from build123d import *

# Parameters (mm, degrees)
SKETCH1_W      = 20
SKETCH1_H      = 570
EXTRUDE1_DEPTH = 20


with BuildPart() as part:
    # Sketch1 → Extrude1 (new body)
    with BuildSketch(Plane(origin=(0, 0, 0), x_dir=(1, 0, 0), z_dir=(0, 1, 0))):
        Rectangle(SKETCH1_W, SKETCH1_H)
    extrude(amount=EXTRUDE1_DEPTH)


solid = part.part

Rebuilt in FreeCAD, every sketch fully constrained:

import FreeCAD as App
import Part
import Sketcher

doc = App.newDocument("Part")
body = doc.addObject("PartDesign::Body", "Body")

# Sketch on XZ plane
sketch1 = doc.addObject("Sketcher::SketchObject", "Sketch")
body.addObject(sketch1)
sketch1.AttachmentSupport = (doc.XZ_Plane, [""])
sketch1.MapMode = "FlatFace"
sketch1.addGeometry(Part.LineSegment(App.Vector(-10, -285, 0), App.Vector(-10, 285, 0)), False)
sketch1.addGeometry(Part.LineSegment(App.Vector(-10, 285, 0), App.Vector(10, 285, 0)), False)
sketch1.addGeometry(Part.LineSegment(App.Vector(10, 285, 0), App.Vector(10, -285, 0)), False)
sketch1.addGeometry(Part.LineSegment(App.Vector(10, -285, 0), App.Vector(-10, -285, 0)), False)
sketch1.addConstraint(Sketcher.Constraint("Coincident", 0, 2, 1, 1))
sketch1.addConstraint(Sketcher.Constraint("Coincident", 1, 2, 2, 1))
sketch1.addConstraint(Sketcher.Constraint("Coincident", 2, 2, 3, 1))
sketch1.addConstraint(Sketcher.Constraint("Coincident", 3, 2, 0, 1))
sketch1.addConstraint(Sketcher.Constraint("Vertical", 0))
sketch1.addConstraint(Sketcher.Constraint("Horizontal", 1))
sketch1.addConstraint(Sketcher.Constraint("Vertical", 2))
sketch1.addConstraint(Sketcher.Constraint("Horizontal", 3))
sketch1.addConstraint(Sketcher.Constraint("Symmetric", 0, 2, 2, 2, -1, 1))
sketch1.addConstraint(Sketcher.Constraint("DistanceX", 1, 1, 1, 2, 20.0))
sketch1.addConstraint(Sketcher.Constraint("DistanceY", 0, 1, 0, 2, 570.0))
pad1 = doc.addObject("PartDesign::Pad", "Pad")
body.addObject(pad1)
pad1.Profile = sketch1
pad1.Length = 20
pad1.Reversed = True

doc.recompute()
